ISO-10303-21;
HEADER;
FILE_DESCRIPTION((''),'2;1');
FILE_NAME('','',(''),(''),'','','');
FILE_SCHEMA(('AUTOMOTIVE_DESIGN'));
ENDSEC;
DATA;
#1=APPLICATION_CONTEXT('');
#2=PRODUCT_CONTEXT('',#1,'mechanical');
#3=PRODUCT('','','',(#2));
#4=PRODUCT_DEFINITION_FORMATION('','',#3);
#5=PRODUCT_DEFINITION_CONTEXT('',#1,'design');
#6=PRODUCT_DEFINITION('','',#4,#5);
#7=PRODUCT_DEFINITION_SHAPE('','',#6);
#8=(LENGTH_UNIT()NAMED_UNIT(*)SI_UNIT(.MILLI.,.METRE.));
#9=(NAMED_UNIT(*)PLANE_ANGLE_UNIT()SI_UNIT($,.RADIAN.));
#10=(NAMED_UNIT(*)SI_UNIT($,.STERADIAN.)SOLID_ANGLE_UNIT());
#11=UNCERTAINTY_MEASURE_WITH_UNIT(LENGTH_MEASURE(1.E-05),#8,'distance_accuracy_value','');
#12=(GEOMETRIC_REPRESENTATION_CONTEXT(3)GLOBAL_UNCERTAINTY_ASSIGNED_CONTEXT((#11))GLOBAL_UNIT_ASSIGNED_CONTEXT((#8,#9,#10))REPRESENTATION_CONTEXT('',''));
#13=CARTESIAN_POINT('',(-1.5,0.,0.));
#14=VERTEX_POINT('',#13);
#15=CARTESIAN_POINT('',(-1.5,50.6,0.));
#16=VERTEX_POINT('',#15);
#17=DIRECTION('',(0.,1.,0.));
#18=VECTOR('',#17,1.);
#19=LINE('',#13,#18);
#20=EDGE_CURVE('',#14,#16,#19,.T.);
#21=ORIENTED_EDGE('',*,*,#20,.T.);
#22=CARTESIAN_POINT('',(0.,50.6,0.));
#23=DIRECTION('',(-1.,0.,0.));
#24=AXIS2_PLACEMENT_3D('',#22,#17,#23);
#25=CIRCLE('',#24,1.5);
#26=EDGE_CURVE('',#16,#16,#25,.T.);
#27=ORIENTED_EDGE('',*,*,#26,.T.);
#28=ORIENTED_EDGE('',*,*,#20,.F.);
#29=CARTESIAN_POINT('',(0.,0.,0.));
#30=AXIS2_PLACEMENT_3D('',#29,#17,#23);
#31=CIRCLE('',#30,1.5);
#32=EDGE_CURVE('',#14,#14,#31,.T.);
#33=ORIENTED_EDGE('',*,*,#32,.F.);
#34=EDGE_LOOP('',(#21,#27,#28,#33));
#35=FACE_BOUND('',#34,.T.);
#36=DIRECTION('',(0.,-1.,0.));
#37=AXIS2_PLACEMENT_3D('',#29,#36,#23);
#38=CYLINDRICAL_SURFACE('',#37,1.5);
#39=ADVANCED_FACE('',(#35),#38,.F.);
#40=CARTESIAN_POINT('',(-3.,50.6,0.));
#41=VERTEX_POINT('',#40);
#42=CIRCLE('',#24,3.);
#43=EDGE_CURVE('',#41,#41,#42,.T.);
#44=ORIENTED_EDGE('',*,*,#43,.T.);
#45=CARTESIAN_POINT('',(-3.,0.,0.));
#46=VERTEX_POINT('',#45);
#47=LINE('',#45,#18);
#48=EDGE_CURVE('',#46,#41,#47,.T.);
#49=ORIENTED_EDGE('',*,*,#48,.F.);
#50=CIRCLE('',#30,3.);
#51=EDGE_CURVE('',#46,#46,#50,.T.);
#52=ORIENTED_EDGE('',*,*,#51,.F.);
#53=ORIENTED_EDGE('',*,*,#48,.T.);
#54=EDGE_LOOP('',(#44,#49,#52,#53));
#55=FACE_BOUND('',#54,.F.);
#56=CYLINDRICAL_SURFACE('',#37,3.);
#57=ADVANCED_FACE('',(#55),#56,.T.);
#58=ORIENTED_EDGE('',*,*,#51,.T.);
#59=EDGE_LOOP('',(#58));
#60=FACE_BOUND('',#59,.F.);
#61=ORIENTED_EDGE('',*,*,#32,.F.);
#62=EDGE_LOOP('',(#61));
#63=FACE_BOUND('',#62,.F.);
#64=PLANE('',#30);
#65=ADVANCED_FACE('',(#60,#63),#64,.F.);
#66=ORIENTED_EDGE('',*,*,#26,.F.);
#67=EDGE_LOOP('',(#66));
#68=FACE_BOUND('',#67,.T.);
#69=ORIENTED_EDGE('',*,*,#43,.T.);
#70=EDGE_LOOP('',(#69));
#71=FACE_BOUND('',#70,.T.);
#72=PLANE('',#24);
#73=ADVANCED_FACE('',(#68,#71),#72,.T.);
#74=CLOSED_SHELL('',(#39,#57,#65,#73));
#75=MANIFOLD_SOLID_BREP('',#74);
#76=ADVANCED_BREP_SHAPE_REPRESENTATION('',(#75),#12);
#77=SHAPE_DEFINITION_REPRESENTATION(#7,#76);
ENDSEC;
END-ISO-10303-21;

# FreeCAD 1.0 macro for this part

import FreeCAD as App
import Part
import Sketcher
from FreeCAD import Vector
Q = App.Units.Quantity

doc = App.newDocument("Part")
params = doc.addObject("Spreadsheet::Sheet", "Params")
for row, (alias, value) in enumerate([
    ("sketch1_diameter", "6 mm"),
    ("sketch1_diameter2", "3 mm"),
    ("pad1_length", "50.6 mm"),
], start=1):
    params.set(f"A{row}", alias)
    params.set(f"B{row}", "=" + value)
    params.setAlias(f"B{row}", alias)

body = doc.addObject("PartDesign::Body", "Body")

# Sketch on XZ plane
sketch1 = body.newObject("Sketcher::SketchObject", "Sketch")
sketch1.AttachmentSupport = (doc.getObject("XZ_Plane"), [""])
sketch1.MapMode = "FlatFace"
sketch1.addGeometry([
    Part.Circle(Vector(0, 0, 0), Vector(0, 0, 1), 3),
    Part.Circle(Vector(0, 0, 0), Vector(0, 0, 1), 1.5),
], False)
sketch1.addConstraint([
    Sketcher.Constraint("Coincident", 0, 3, -1, 1),
    Sketcher.Constraint("Coincident", 1, 3, -1, 1),
    Sketcher.Constraint("Diameter", 0, Q("6 mm")),
    Sketcher.Constraint("Diameter", 1, Q("3 mm")),
])
sketch1.setExpression("Constraints[2]", "Params.sketch1_diameter")
sketch1.setExpression("Constraints[3]", "Params.sketch1_diameter2")
pad1 = body.newObject("PartDesign::Pad", "Pad")
pad1.Profile = sketch1
pad1.setExpression("Length", "Params.pad1_length")
pad1.Reversed = True

doc.recompute()
